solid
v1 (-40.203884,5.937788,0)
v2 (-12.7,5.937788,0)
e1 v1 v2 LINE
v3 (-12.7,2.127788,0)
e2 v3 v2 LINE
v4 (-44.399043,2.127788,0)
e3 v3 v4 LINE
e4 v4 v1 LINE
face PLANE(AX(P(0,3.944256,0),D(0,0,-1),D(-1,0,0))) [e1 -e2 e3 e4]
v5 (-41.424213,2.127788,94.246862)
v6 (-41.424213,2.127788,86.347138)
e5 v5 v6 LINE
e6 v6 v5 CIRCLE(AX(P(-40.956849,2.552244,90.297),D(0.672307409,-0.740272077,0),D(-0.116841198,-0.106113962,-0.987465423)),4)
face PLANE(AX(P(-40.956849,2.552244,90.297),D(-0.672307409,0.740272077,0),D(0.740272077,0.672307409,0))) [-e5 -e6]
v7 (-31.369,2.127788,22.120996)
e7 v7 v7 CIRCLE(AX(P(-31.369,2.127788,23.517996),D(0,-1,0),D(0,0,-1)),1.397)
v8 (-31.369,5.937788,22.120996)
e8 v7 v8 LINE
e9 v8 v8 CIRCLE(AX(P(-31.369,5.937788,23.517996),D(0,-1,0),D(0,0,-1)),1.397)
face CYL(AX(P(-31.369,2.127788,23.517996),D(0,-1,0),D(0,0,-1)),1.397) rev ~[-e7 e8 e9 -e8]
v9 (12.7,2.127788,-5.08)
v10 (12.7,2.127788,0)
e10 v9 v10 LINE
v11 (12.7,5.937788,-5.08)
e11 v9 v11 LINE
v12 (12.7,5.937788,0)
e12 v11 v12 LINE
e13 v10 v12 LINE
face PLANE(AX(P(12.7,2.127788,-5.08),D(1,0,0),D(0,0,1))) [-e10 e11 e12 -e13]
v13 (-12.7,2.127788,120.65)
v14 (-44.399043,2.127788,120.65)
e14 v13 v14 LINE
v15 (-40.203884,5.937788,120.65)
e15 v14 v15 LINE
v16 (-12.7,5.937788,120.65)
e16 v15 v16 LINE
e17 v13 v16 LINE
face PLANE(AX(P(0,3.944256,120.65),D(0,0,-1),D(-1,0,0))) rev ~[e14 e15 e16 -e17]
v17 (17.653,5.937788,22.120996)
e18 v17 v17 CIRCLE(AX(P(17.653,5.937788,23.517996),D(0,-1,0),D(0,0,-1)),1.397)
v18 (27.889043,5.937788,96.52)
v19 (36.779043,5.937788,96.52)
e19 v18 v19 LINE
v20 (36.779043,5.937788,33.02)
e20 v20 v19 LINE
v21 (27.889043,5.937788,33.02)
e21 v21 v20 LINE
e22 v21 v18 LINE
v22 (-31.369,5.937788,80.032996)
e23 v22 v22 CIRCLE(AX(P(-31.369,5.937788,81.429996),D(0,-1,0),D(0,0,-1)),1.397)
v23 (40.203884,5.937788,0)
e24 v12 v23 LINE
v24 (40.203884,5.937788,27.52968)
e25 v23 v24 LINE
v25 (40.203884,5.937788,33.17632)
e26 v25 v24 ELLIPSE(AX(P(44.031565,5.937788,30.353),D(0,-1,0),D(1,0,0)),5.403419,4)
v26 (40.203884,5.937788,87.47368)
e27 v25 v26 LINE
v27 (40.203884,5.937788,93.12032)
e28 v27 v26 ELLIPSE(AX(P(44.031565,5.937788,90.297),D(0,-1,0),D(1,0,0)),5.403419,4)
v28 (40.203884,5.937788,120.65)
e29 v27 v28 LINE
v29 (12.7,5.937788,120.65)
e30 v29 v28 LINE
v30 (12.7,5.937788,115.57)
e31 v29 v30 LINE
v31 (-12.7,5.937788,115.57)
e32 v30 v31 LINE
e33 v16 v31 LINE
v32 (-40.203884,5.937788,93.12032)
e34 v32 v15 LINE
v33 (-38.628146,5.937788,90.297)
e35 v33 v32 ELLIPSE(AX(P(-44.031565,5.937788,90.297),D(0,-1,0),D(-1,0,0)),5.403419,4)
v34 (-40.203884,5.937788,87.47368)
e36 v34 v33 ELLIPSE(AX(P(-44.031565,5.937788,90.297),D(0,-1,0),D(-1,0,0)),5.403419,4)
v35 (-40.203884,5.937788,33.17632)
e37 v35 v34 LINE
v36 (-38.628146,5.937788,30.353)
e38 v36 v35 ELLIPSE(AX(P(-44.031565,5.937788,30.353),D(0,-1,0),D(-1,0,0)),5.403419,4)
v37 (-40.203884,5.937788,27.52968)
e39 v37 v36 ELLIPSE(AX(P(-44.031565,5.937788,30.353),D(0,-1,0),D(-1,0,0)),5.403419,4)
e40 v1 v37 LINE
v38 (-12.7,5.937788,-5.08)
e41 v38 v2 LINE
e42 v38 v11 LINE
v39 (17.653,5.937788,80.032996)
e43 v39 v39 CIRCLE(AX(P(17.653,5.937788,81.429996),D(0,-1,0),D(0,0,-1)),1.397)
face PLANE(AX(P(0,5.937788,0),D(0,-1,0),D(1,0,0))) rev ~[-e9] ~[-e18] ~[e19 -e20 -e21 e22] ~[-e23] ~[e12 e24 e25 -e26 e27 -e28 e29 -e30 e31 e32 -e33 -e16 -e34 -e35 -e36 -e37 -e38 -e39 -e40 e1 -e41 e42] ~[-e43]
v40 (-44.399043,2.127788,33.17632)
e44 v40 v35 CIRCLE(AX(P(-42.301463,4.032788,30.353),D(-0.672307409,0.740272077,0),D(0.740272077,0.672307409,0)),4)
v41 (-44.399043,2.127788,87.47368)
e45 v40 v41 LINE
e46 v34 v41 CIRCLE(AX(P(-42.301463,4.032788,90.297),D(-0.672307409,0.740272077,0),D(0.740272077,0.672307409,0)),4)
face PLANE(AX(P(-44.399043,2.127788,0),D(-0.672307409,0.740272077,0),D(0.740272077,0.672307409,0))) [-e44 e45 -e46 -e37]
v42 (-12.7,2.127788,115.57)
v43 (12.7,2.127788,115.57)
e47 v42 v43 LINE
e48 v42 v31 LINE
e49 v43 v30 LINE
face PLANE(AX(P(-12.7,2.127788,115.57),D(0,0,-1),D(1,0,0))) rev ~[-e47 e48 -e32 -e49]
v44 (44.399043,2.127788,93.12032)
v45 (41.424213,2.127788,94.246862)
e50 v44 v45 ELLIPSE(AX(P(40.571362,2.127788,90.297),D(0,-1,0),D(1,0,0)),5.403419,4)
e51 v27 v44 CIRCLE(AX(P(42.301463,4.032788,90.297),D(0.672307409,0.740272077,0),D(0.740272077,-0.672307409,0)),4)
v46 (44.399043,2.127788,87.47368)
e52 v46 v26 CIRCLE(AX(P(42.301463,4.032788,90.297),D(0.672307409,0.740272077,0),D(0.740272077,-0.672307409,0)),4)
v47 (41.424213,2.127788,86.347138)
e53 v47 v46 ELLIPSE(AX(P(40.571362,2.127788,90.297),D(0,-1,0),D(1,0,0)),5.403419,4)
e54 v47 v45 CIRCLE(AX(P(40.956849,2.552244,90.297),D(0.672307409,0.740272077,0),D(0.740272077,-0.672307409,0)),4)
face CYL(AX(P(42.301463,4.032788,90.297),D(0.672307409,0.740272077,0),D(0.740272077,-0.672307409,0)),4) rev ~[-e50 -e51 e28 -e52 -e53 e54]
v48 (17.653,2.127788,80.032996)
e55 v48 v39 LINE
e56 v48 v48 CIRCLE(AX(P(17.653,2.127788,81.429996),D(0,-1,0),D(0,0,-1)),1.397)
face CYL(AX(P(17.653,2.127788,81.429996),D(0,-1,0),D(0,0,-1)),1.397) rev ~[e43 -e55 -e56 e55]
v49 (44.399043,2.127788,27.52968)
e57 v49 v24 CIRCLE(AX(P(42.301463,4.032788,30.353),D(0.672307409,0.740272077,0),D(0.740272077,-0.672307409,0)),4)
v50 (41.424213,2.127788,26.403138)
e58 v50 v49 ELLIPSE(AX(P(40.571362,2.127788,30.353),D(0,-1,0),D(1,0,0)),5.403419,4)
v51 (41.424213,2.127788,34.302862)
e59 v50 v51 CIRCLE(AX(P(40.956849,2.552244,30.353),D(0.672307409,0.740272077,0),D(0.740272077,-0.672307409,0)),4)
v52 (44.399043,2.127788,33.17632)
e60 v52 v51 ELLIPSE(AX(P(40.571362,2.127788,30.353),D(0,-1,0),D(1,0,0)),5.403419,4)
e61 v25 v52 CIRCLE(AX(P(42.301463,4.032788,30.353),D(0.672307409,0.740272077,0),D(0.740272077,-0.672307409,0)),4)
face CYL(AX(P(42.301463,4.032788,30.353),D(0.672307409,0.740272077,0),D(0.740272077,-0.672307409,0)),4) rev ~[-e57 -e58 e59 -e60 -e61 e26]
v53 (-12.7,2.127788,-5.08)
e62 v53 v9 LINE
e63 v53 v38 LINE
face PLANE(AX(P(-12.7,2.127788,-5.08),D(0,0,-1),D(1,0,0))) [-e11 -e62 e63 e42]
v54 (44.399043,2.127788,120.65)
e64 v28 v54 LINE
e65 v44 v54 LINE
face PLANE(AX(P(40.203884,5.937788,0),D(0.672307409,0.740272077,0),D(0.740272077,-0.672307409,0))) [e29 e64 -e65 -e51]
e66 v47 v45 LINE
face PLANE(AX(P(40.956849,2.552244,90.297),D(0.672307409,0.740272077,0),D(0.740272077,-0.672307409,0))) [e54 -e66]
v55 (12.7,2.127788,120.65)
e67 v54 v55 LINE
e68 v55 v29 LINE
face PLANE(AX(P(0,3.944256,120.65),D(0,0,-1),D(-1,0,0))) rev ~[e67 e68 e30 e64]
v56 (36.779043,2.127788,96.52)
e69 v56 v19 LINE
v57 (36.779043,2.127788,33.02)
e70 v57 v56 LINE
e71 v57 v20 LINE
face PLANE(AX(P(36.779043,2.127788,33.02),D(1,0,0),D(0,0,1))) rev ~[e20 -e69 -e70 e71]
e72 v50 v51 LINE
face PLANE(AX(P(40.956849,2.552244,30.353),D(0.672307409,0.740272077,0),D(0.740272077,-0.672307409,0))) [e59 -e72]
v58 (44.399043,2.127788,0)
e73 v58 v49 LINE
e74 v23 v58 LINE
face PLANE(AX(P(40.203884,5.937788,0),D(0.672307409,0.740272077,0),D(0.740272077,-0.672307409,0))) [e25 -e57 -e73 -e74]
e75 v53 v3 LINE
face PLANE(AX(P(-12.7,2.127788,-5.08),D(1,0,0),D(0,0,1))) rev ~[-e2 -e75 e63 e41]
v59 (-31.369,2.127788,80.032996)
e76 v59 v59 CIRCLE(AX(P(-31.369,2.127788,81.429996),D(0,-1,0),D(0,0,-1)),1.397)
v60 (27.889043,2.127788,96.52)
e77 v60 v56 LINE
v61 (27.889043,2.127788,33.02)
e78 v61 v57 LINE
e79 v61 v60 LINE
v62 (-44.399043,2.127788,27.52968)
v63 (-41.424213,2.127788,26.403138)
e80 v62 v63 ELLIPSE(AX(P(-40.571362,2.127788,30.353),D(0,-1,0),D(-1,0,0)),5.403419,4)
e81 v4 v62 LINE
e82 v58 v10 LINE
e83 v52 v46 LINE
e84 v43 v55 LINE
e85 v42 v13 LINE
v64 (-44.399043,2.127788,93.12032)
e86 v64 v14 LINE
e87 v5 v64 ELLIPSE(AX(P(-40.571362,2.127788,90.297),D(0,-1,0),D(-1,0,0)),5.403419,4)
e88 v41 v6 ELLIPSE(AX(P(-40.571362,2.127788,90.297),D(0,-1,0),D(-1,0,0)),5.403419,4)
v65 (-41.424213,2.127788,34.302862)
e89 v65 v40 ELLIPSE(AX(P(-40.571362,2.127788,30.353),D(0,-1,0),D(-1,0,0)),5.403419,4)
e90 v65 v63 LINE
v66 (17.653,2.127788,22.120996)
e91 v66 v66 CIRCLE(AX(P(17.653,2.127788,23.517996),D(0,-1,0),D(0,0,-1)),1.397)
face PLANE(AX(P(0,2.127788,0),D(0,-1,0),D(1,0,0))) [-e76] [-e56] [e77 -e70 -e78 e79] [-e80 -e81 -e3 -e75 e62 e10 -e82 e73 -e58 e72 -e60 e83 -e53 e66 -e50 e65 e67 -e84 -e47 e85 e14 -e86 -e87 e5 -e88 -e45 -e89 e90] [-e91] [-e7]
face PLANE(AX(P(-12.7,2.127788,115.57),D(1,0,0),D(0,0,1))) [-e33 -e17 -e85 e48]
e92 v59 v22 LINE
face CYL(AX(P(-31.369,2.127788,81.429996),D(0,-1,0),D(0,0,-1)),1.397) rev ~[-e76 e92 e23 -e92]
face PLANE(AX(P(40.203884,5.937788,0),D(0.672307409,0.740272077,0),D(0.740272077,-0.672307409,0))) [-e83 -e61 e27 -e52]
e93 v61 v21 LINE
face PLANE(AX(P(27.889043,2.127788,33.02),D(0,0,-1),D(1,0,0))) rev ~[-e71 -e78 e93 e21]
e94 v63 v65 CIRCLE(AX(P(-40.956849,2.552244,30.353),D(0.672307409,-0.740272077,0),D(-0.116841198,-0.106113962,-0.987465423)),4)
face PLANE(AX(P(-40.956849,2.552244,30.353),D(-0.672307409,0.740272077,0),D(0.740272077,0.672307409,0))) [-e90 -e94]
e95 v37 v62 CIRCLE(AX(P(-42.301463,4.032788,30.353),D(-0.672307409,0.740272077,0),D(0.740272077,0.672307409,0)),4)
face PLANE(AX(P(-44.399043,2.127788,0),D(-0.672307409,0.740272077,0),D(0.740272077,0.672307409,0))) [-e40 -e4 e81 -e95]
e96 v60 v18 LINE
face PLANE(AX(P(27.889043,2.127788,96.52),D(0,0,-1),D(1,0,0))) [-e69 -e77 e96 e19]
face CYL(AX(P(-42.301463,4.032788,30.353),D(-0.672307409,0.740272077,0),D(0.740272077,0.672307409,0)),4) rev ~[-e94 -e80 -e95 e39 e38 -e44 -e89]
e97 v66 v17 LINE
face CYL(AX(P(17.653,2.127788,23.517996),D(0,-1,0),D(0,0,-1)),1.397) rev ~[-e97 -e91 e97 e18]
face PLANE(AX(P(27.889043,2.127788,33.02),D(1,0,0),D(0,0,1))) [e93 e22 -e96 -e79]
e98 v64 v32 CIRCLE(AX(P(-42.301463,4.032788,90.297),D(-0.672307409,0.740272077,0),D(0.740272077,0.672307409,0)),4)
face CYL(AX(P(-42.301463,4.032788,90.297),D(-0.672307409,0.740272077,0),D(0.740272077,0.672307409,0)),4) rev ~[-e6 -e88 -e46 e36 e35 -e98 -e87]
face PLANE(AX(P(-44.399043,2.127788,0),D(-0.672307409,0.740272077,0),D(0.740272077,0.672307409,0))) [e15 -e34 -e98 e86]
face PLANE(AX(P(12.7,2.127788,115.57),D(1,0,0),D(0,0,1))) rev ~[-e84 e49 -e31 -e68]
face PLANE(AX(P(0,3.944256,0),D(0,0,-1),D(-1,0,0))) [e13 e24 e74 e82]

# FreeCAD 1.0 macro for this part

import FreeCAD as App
import Part
import Sketcher
from FreeCAD import Vector
Q = App.Units.Quantity


def add_polygon(sketch, points):
    """Adds a closed chain of lines whose ends are joined by coincident constraints."""
    first, n = sketch.GeometryCount, len(points)
    for a, b in zip(points, points[1:] + points[:1]):
        sketch.addGeometry(Part.LineSegment(App.Vector(*a, 0), App.Vector(*b, 0)), False)
    for i in range(n):
        sketch.addConstraint(Sketcher.Constraint("Coincident", first + i, 2, first + (i + 1) % n, 1))

doc = App.newDocument("Part")
body = doc.addObject("PartDesign::Body", "Body")

# Sketch on XY plane
sketch1 = body.newObject("Sketcher::SketchObject", "Sketch")
sketch1.AttachmentSupport = (doc.getObject("XY_Plane"), [""])
sketch1.MapMode = "FlatFace"
add_polygon(sketch1, [(40, 6), (-40, 6), (-44, 2), (44, 2)])  # lines 0-3
sketch1.addConstraint([
    Sketcher.Constraint("Horizontal", 0),
    Sketcher.Constraint("Horizontal", 2),
    Sketcher.Constraint("Equal", 1, 3),
    Sketcher.Constraint("DistanceY", 1, 2, 0, 2, Q("0.15 in")),
    Sketcher.Constraint("Distance", 1, Q("5.66705 mm")),
    Sketcher.Constraint("DistanceX", 0, 2, 0, 1, Q("80.407768 mm")),
    Sketcher.Constraint("DistanceY", -1, 1, 0, 2, Q("5.937788 mm")),
    Sketcher.Constraint("DistanceX", 0, 2, -1, 1, Q("40.203884 mm")),
])
pad1 = body.newObject("PartDesign::Pad", "Pad")
pad1.Profile = sketch1
pad1.Length = Q("4.75 in")

# Sketch on XZ plane
sketch2 = body.newObject("Sketcher::SketchObject", "Sketch001")
sketch2.AttachmentSupport = (doc.getObject("XZ_Plane"), [""])
sketch2.MapMode = "FlatFace"
sketch2.AttachmentOffset = App.Placement(Vector(0, 0, -2.127788), App.Rotation())
sketch2.addGeometry([
    Part.Circle(Vector(-31.4, 81.4, 0), Vector(0, 0, 1), 1.4),
    Part.Circle(Vector(17.7, 23.5, 0), Vector(0, 0, 1), 1.4),
    Part.Circle(Vector(-31.4, 23.5, 0), Vector(0, 0, 1), 1.4),
    Part.Circle(Vector(17.7, 81.4, 0), Vector(0, 0, 1), 1.4),
], False)
sketch2.addConstraint([
    Sketcher.Constraint("Equal", 0, 1),
    Sketcher.Constraint("Equal", 1, 2),
    Sketcher.Constraint("Equal", 2, 3),
    Sketcher.Constraint("Horizontal", 1, 3, 2, 3),
    Sketcher.Constraint("Horizontal", 0, 3, 3, 3),
    Sketcher.Constraint("Vertical", 0, 3, 2, 3),
    Sketcher.Constraint("Vertical", 1, 3, 3, 3),
    Sketcher.Constraint("Diameter", 0, Q("0.11 in")),
    Sketcher.Constraint("DistanceX", 0, 3, 1, 3, Q("1.93 in")),
    Sketcher.Constraint("DistanceY", 1, 3, 0, 3, Q("2.28 in")),
    Sketcher.Constraint("DistanceX", 0, 3, -1, 1, Q("1.235 in")),
    Sketcher.Constraint("DistanceY", -1, 1, 0, 3, Q("81.429996 mm")),
])
pocket1 = body.newObject("PartDesign::Pocket", "Pocket")
pocket1.Profile = sketch2
pocket1.Type = "ThroughAll"

# Sketch on XZ plane
sketch3 = body.newObject("Sketcher::SketchObject", "Sketch002")
sketch3.AttachmentSupport = (doc.getObject("XZ_Plane"), [""])
sketch3.MapMode = "FlatFace"
sketch3.AttachmentOffset = App.Placement(Vector(0, 0, -2.127788), App.Rotation())
add_polygon(sketch3, [(-13, 121), (-13, 116), (13, 116), (13, 121)])  # lines 0-3
add_polygon(sketch3, [(-13, 5), (-13, 0), (13, 0), (13, 5)])  # lines 4-7
sketch3.addConstraint([
    Sketcher.Constraint("Vertical", 0),
    Sketcher.Constraint("Horizontal", 1),
    Sketcher.Constraint("Vertical", 2),
    Sketcher.Constraint("Horizontal", 3),
    Sketcher.Constraint("Vertical", 4),
    Sketcher.Constraint("Horizontal", 5),
    Sketcher.Constraint("Vertical", 6),
    Sketcher.Constraint("Horizontal", 7),
    Sketcher.Constraint("Symmetric", 4, 2, 5, 2, -1, 1),
    Sketcher.Constraint("Vertical", 3, 2, 4, 2),
    Sketcher.Constraint("Vertical", 2, 2, 5, 2),
    Sketcher.Constraint("Equal", 2, 4),
    Sketcher.Constraint("DistanceX", 1, 1, 1, 2, Q("1 in")),
    Sketcher.Constraint("DistanceY", 0, 2, 0, 1, Q("0.2 in")),
    Sketcher.Constraint("DistanceY", -1, 1, 0, 2, Q("4.55 in")),
])
pocket2 = body.newObject("PartDesign::Pocket", "Pocket001")
pocket2.Profile = sketch3
pocket2.Type = "ThroughAll"

# Sketch on XZ plane
sketch4 = body.newObject("Sketcher::SketchObject", "Sketch003")
sketch4.AttachmentSupport = (doc.getObject("XZ_Plane"), [""])
sketch4.MapMode = "FlatFace"
sketch4.AttachmentOffset = App.Placement(Vector(0, 0, -2.127788), App.Rotation())
add_polygon(sketch4, [(-13, 5), (-13, -5), (13, -5), (13, 5)])  # lines 0-3
sketch4.addConstraint([
    Sketcher.Constraint("Vertical", 0),
    Sketcher.Constraint("Horizontal", 1),
    Sketcher.Constraint("Vertical", 2),
    Sketcher.Constraint("Horizontal", 3),
    Sketcher.Constraint("Symmetric", 0, 2, 2, 2, -1, 1),
    Sketcher.Constraint("DistanceX", 1, 1, 1, 2, Q("1 in")),
    Sketcher.Constraint("DistanceY", 0, 2, 0, 1, Q("0.4 in")),
])
pad2 = body.newObject("PartDesign::Pad", "Pad001")
pad2.Profile = sketch4
pad2.Length = Q("0.15 in")
pad2.Reversed = True

# Sketch on XZ plane
sketch5 = body.newObject("Sketcher::SketchObject", "Sketch004")
sketch5.AttachmentSupport = (doc.getObject("XZ_Plane"), [""])
sketch5.MapMode = "FlatFace"
sketch5.AttachmentOffset = App.Placement(Vector(0, 0, -2.127788), App.Rotation())
add_polygon(sketch5, [(28, 97), (28, 33), (37, 33), (37, 97)])  # lines 0-3
sketch5.addConstraint([
    Sketcher.Constraint("Vertical", 0),
    Sketcher.Constraint("Horizontal", 1),
    Sketcher.Constraint("Vertical", 2),
    Sketcher.Constraint("Horizontal", 3),
    Sketcher.Constraint("DistanceY", 0, 2, 0, 1, Q("2.5 in")),
    Sketcher.Constraint("DistanceX", 1, 1, 1, 2, Q("0.35 in")),
    Sketcher.Constraint("DistanceY", -1, 1, 0, 2, Q("1.3 in")),
    Sketcher.Constraint("DistanceX", -1, 1, 0, 2, Q("27.889043 mm")),
])
pocket3 = body.newObject("PartDesign::Pocket", "Pocket002")
pocket3.Profile = sketch5
pocket3.Type = "ThroughAll"

# Sketch on an angled plane
sketch6 = body.newObject("Sketcher::SketchObject", "Sketch005")
sketch6.Placement = App.Placement(Vector(21.127225, 23.263011, 0), App.Rotation(Vector(0.740272077, -0.672307409, 0), Vector(0, 0, -1), Vector(0.672307409, 0.740272077, 0), "ZXY"))
sketch6.addGeometry([
    Part.Circle(Vector(28.6, -90.3, 0), Vector(0, 0, 1), 4),
    Part.Circle(Vector(28.6, -30.4, 0), Vector(0, 0, 1), 4),
], False)
sketch6.addConstraint([
    Sketcher.Constraint("Equal", 0, 1),
    Sketcher.Constraint("Vertical", 0, 3, 1, 3),
    Sketcher.Constraint("Diameter", 0, Q("8 mm")),
    Sketcher.Constraint("DistanceY", 0, 3, 1, 3, Q("2.36 in")),
    Sketcher.Constraint("DistanceY", 0, 3, -1, 1, Q("3.555 in")),
    Sketcher.Constraint("DistanceX", -1, 1, 0, 3, Q("28.603319 mm")),
])
pocket4 = body.newObject("PartDesign::Pocket", "Pocket003")
pocket4.Profile = sketch6
pocket4.Length = 2

# Sketch on an angled plane
sketch7 = body.newObject("Sketcher::SketchObject", "Sketch006")
sketch7.Placement = App.Placement(Vector(-21.127225, 23.263011, 0), App.Rotation(Vector(0.740272077, 0.672307409, 0), Vector(0, 0, -1), Vector(-0.672307409, 0.740272077, 0), "ZXY"))
sketch7.addGeometry([
    Part.Circle(Vector(-28.6, -30.4, 0), Vector(0, 0, 1), 4),
    Part.Circle(Vector(-28.6, -90.3, 0), Vector(0, 0, 1), 4),
], False)
sketch7.addConstraint([
    Sketcher.Constraint("Equal", 0, 1),
    Sketcher.Constraint("Vertical", 0, 3, 1, 3),
    Sketcher.Constraint("Diameter", 0, Q("8 mm")),
    Sketcher.Constraint("DistanceY", 1, 3, 0, 3, Q("2.36 in")),
    Sketcher.Constraint("DistanceY", 0, 3, -1, 1, Q("1.195 in")),
    Sketcher.Constraint("DistanceX", 0, 3, -1, 1, Q("28.603319 mm")),
])
pocket5 = body.newObject("PartDesign::Pocket", "Pocket004")
pocket5.Profile = sketch7
pocket5.Length = 2

doc.recompute()
